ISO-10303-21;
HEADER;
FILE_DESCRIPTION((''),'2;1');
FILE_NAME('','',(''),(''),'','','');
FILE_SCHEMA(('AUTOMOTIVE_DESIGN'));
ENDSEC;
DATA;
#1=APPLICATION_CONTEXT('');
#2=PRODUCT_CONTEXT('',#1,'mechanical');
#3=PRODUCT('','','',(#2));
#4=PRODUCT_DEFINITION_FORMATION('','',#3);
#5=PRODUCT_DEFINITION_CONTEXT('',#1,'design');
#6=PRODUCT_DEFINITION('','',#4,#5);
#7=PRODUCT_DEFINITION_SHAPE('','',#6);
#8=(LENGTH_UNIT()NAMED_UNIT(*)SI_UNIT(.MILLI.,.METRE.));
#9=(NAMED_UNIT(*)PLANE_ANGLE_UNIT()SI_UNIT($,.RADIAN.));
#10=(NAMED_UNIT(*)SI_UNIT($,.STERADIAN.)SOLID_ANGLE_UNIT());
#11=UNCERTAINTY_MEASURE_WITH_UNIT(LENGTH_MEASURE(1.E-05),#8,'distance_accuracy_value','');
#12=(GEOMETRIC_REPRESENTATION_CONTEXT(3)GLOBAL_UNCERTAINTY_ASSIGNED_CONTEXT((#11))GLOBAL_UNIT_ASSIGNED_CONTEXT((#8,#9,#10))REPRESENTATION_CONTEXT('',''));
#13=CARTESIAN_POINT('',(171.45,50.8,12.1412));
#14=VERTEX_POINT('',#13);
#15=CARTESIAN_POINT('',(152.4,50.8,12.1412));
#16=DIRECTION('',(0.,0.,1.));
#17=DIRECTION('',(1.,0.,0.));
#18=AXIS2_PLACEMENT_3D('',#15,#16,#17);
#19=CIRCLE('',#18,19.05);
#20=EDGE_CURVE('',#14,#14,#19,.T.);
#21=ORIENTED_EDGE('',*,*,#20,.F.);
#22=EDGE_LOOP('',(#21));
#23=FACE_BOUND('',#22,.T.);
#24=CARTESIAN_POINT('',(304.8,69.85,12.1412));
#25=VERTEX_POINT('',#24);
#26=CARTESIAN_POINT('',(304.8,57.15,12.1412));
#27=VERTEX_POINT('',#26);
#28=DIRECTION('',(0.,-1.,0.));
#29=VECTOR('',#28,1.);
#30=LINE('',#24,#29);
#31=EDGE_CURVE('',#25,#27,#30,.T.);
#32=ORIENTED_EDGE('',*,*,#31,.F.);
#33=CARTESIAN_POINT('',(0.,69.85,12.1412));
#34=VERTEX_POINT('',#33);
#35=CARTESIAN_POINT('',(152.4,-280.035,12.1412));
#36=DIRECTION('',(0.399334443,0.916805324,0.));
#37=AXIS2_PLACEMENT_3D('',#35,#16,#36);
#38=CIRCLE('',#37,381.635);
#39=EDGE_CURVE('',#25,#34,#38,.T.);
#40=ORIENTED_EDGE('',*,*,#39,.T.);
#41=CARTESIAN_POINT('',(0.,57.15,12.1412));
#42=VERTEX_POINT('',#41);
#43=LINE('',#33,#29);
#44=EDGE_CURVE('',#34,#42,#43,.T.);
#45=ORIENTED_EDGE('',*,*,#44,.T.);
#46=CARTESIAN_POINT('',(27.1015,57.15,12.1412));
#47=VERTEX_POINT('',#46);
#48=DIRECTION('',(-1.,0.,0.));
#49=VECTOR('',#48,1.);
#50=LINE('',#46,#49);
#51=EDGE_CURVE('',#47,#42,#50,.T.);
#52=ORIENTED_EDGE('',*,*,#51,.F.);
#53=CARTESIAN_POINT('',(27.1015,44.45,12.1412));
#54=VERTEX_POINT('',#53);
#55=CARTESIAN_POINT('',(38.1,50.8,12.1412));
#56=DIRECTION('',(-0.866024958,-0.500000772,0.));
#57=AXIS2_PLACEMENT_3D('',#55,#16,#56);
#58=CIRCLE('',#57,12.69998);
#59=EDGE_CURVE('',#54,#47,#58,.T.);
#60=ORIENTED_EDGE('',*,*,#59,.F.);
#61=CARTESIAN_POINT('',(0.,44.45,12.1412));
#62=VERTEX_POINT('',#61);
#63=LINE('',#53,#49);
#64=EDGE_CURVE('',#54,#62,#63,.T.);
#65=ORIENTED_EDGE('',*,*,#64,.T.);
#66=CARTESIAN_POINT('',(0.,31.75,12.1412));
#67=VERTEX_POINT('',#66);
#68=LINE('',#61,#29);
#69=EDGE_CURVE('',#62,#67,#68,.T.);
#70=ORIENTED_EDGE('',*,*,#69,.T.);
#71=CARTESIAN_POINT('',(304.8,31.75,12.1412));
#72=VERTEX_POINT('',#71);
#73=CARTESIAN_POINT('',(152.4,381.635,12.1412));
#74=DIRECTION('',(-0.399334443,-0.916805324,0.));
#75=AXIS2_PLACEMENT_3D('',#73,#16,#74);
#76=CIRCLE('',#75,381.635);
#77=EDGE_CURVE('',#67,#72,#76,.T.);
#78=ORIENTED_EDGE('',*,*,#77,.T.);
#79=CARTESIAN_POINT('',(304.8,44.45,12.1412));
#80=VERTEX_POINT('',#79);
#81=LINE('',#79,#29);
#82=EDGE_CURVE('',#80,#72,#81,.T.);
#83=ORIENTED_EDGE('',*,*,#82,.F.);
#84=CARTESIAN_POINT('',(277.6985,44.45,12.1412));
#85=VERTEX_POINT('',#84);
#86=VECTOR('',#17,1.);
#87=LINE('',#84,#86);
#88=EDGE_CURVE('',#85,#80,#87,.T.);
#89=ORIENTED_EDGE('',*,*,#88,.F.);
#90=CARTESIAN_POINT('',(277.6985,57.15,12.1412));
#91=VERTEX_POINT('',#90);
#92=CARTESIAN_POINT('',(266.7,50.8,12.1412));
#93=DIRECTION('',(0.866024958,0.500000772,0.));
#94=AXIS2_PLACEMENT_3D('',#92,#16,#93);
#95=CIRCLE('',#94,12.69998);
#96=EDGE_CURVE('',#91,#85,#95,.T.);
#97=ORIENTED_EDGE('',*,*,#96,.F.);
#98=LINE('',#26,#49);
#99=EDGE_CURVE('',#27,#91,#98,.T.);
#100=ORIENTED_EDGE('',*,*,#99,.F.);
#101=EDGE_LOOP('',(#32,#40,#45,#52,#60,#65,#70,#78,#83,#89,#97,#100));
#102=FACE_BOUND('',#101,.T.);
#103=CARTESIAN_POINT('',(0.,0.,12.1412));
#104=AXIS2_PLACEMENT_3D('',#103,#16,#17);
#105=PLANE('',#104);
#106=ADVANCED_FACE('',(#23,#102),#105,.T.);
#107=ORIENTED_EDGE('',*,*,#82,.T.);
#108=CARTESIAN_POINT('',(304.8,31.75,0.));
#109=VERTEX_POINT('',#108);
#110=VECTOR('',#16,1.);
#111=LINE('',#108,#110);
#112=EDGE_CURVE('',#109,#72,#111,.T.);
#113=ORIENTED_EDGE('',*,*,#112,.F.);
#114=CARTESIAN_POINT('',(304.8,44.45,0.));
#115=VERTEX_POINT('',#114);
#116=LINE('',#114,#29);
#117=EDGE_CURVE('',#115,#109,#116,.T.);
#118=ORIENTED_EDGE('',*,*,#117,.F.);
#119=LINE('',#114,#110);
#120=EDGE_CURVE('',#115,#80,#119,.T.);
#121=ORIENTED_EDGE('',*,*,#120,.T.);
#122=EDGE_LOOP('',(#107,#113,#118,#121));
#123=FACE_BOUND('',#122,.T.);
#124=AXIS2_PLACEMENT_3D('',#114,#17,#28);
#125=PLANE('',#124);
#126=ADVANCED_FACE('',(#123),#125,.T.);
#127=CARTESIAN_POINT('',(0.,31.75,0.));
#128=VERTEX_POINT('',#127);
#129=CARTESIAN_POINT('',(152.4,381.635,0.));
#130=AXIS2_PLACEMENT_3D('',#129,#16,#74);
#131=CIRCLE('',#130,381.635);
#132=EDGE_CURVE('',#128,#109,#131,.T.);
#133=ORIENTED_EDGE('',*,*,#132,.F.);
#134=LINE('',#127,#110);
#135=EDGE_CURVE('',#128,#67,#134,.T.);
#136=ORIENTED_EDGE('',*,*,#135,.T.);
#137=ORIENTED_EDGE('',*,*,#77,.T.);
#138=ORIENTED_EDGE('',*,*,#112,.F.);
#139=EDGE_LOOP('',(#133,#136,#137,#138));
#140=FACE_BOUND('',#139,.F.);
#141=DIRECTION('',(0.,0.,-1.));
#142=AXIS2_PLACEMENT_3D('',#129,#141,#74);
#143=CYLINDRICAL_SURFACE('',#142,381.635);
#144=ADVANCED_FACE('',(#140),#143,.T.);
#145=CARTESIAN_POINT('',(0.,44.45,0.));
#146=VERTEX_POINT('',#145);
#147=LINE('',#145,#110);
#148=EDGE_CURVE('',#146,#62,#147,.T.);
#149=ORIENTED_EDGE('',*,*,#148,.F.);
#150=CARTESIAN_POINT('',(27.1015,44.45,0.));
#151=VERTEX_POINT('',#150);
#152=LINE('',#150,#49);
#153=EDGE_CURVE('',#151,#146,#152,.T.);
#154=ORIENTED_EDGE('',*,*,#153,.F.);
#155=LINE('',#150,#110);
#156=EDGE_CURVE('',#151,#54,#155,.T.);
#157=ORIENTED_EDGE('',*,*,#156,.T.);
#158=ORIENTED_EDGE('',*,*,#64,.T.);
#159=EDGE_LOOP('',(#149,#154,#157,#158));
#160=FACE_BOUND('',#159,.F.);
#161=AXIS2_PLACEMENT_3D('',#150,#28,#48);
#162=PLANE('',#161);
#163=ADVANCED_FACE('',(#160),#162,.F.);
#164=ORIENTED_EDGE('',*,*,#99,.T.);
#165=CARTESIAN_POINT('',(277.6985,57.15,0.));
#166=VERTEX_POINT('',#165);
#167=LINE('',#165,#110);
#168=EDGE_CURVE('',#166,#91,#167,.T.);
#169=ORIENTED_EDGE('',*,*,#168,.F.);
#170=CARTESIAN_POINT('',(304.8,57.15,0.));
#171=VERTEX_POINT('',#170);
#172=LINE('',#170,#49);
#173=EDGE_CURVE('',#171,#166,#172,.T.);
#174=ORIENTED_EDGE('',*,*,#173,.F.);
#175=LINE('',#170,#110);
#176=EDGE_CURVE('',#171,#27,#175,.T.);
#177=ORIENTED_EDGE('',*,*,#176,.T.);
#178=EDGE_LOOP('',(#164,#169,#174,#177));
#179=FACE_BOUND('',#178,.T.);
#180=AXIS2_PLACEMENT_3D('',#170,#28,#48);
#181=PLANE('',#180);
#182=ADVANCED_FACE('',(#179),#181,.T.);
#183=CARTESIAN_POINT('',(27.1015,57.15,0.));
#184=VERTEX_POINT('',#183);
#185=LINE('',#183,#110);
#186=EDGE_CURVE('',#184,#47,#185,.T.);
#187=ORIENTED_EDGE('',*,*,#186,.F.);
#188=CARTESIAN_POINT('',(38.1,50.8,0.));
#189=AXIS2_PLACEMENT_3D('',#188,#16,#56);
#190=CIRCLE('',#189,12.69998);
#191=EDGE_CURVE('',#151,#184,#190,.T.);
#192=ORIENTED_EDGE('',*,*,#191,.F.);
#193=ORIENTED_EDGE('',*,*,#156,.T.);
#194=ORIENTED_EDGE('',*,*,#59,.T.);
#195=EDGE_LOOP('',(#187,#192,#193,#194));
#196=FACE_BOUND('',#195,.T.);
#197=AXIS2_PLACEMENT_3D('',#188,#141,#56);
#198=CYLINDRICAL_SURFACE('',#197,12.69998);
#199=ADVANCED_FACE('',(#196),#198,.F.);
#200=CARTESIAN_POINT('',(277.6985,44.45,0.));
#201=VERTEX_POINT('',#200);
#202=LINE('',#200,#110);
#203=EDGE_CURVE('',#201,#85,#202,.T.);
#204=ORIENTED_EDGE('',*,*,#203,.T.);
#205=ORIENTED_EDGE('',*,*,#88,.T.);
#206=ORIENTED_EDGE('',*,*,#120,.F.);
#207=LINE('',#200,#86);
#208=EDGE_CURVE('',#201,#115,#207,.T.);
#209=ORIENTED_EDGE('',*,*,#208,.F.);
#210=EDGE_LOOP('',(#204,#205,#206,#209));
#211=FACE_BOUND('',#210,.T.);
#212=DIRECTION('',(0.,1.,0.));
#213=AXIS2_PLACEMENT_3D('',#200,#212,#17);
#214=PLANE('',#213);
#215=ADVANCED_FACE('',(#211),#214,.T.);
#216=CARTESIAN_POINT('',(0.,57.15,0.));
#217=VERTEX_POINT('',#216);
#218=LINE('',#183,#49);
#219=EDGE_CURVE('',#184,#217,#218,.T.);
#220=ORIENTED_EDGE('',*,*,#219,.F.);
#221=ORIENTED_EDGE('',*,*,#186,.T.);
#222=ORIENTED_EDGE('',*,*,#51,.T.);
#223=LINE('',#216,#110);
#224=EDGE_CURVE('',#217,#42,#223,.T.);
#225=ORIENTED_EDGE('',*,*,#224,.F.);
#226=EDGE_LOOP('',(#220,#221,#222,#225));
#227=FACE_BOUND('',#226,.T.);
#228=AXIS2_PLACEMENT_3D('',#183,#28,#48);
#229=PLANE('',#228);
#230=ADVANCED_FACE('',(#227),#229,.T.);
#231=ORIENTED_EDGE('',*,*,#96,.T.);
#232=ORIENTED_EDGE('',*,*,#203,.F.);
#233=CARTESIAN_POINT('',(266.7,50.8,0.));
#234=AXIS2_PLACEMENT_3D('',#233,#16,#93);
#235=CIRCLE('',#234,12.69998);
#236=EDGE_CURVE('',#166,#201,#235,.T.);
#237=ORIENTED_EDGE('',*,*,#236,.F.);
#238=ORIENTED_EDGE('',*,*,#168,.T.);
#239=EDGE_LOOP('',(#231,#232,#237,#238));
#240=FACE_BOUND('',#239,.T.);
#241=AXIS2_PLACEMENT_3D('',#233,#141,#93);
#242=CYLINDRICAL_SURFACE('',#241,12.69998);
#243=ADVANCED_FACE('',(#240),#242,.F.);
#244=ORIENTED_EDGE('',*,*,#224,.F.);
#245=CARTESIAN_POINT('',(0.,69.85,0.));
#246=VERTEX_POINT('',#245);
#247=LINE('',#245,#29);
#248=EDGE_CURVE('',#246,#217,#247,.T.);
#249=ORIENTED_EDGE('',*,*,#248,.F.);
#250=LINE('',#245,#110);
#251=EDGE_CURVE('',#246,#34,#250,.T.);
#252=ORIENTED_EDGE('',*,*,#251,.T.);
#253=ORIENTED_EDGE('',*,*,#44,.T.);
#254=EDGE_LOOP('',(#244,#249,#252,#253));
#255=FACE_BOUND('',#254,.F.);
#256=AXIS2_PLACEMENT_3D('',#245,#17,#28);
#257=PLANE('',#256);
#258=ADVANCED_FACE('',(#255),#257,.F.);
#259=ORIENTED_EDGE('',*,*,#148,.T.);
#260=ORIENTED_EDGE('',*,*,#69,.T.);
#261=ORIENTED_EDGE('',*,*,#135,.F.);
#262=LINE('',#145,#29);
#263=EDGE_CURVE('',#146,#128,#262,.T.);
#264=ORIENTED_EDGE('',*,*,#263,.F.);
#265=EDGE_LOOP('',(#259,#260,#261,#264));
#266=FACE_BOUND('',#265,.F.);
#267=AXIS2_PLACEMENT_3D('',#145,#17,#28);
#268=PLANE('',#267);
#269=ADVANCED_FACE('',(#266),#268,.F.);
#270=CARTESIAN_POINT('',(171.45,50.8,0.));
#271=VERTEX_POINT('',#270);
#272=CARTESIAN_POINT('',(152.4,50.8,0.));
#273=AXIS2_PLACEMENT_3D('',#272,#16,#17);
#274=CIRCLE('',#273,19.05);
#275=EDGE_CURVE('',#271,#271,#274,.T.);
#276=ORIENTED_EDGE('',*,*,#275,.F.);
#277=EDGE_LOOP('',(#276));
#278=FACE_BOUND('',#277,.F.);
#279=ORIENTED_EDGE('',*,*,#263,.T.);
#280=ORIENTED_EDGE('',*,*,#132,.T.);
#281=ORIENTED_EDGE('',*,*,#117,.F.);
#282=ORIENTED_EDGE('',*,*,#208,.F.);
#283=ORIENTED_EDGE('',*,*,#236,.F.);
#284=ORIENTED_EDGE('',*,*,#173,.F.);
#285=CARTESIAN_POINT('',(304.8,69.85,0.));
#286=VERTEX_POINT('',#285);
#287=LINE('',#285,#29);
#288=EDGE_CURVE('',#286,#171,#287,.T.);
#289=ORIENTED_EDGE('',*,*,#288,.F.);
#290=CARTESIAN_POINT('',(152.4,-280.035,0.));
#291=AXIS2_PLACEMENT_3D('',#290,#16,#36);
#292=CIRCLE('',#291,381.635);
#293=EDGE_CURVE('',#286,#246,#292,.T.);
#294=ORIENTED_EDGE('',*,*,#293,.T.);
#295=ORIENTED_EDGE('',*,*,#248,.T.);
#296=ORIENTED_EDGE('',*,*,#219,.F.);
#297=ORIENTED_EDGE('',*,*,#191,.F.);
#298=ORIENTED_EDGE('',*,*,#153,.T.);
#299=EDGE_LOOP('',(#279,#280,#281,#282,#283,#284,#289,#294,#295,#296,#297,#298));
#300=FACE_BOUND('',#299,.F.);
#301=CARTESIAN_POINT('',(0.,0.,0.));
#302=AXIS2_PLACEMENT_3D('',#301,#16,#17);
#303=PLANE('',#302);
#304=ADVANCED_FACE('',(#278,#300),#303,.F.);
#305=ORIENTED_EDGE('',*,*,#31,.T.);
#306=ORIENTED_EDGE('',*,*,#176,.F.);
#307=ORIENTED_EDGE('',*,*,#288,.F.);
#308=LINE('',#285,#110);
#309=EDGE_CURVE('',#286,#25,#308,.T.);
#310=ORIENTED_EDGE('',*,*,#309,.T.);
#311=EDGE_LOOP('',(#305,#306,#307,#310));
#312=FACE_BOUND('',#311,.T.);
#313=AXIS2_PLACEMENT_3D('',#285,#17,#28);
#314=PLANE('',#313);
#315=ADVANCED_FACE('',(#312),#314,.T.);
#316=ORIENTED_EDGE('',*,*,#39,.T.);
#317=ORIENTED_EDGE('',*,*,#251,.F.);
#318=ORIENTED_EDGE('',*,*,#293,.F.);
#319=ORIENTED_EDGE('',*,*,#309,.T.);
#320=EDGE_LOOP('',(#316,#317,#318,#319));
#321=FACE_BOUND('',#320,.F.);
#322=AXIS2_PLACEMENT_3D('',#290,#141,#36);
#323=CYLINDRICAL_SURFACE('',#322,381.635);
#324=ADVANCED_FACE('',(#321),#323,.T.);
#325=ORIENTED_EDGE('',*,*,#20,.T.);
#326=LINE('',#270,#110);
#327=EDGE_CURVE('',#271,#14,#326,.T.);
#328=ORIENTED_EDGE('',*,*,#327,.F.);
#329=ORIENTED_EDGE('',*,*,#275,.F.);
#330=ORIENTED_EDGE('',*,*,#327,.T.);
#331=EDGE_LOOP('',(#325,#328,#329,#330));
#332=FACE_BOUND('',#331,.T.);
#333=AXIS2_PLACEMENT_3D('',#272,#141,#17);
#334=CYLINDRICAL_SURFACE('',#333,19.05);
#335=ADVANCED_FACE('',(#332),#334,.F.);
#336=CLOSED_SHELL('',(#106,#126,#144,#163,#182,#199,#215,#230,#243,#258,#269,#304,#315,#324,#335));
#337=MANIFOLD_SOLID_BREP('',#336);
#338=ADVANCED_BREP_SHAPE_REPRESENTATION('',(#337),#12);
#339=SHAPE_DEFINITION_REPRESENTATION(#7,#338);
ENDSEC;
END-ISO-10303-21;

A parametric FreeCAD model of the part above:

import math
import FreeCAD as App
import Part
import Sketcher
Q = App.Units.Quantity

doc = App.newDocument("Part")
body = doc.addObject("PartDesign::Body", "Body")

# Sketch on XY plane
sketch1 = body.newObject("Sketcher::SketchObject", "Sketch")
sketch1.AttachmentSupport = (doc.getObject("XY_Plane"), [""])
sketch1.MapMode = "FlatFace"
sketch1.addGeometry(Part.LineSegment(App.Vector(0, 57, 0), App.Vector(27, 57, 0)), False)
sketch1.addGeometry(Part.ArcOfCircle(Part.Circle(App.Vector(38, 51, 0), App.Vector(0, 0, 1), 13), math.radians(-150), math.radians(150)), False)
sketch1.addGeometry(Part.LineSegment(App.Vector(27, 44, 0), App.Vector(0, 44, 0)), False)
sketch1.addGeometry(Part.LineSegment(App.Vector(0, 44, 0), App.Vector(0, 32, 0)), False)
sketch1.addGeometry(Part.ArcOfCircle(Part.Circle(App.Vector(152, 382, 0), App.Vector(0, 0, 1), 382), math.radians(-114), math.radians(-66)), False)
sketch1.addGeometry(Part.LineSegment(App.Vector(305, 32, 0), App.Vector(305, 44, 0)), False)
sketch1.addGeometry(Part.LineSegment(App.Vector(305, 44, 0), App.Vector(278, 44, 0)), False)
sketch1.addGeometry(Part.ArcOfCircle(Part.Circle(App.Vector(267, 51, 0), App.Vector(0, 0, 1), 13), math.radians(30), math.radians(330)), False)
sketch1.addGeometry(Part.LineSegment(App.Vector(278, 57, 0), App.Vector(305, 57, 0)), False)
sketch1.addGeometry(Part.LineSegment(App.Vector(305, 57, 0), App.Vector(305, 70, 0)), False)
sketch1.addGeometry(Part.ArcOfCircle(Part.Circle(App.Vector(152, -280, 0), App.Vector(0, 0, 1), 382), math.radians(66), math.radians(114)), False)
sketch1.addGeometry(Part.LineSegment(App.Vector(0, 70, 0), App.Vector(0, 57, 0)), False)
sketch1.addGeometry(Part.Circle(App.Vector(152, 51, 0), App.Vector(0, 0, 1), 19), False)
sketch1.addConstraint(Sketcher.Constraint("Coincident", 0, 2, 1, 2))
sketch1.addConstraint(Sketcher.Constraint("Coincident", 1, 1, 2, 1))
sketch1.addConstraint(Sketcher.Constraint("Coincident", 2, 2, 3, 1))
sketch1.addConstraint(Sketcher.Constraint("Coincident", 3, 2, 4, 1))
sketch1.addConstraint(Sketcher.Constraint("Coincident", 4, 2, 5, 1))
sketch1.addConstraint(Sketcher.Constraint("Coincident", 5, 2, 6, 1))
sketch1.addConstraint(Sketcher.Constraint("Coincident", 6, 2, 7, 2))
sketch1.addConstraint(Sketcher.Constraint("Coincident", 7, 1, 8, 1))
sketch1.addConstraint(Sketcher.Constraint("Coincident", 8, 2, 9, 1))
sketch1.addConstraint(Sketcher.Constraint("Coincident", 9, 2, 10, 1))
sketch1.addConstraint(Sketcher.Constraint("Coincident", 10, 2, 11, 1))
sketch1.addConstraint(Sketcher.Constraint("Coincident", 11, 2, 0, 1))
sketch1.addConstraint(Sketcher.Constraint("Horizontal", 0))
sketch1.addConstraint(Sketcher.Constraint("Horizontal", 2))
sketch1.addConstraint(Sketcher.Constraint("Vertical", 3))
sketch1.addConstraint(Sketcher.Constraint("Vertical", 5))
sketch1.addConstraint(Sketcher.Constraint("Horizontal", 6))
sketch1.addConstraint(Sketcher.Constraint("Horizontal", 8))
sketch1.addConstraint(Sketcher.Constraint("Vertical", 9))
sketch1.addConstraint(Sketcher.Constraint("Vertical", 11))
sketch1.addConstraint(Sketcher.Constraint("Equal", 1, 7))
sketch1.addConstraint(Sketcher.Constraint("Equal", 4, 10))
sketch1.addConstraint(Sketcher.Constraint("PointOnObject", 2, 2, -2))
sketch1.addConstraint(Sketcher.Constraint("PointOnObject", 11, 2, -2))
sketch1.addConstraint(Sketcher.Constraint("Horizontal", 1, 3, 7, 3))
sketch1.addConstraint(Sketcher.Constraint("Horizontal", 7, 3, 12, 3))
sketch1.addConstraint(Sketcher.Constraint("Horizontal", 3, 2, 4, 2))
sketch1.addConstraint(Sketcher.Constraint("Horizontal", 2, 2, 5, 2))
sketch1.addConstraint(Sketcher.Constraint("Horizontal", 0, 2, 7, 1))
sketch1.addConstraint(Sketcher.Constraint("Horizontal", 9, 2, 10, 2))
sketch1.addConstraint(Sketcher.Constraint("Vertical", 4, 3, 10, 3))
sketch1.addConstraint(Sketcher.Constraint("Vertical", 10, 3, 12, 3))
sketch1.addConstraint(Sketcher.Constraint("Vertical", 0, 2, 1, 1))
sketch1.addConstraint(Sketcher.Constraint("Equal", 2, 6))
sketch1.addConstraint(Sketcher.Constraint("Equal", 5, 9))
sketch1.addConstraint(Sketcher.Constraint("Diameter", 12, Q("1.5 in")))
sketch1.addConstraint(Sketcher.Constraint("Radius", 1, Q("0.5 in")))
sketch1.addConstraint(Sketcher.Constraint("DistanceY", 3, 2, 3, 1, Q("0.5 in")))
sketch1.addConstraint(Sketcher.Constraint("DistanceX", -1, 1, 4, 3, Q("6 in")))
sketch1.addConstraint(Sketcher.Constraint("DistanceY", 3, 2, 0, 2, Q("1 in")))
sketch1.addConstraint(Sketcher.Constraint("DistanceX", -1, 1, 1, 3, Q("1.5 in")))
sketch1.addConstraint(Sketcher.Constraint("DistanceY", -1, 1, 1, 3, Q("2 in")))
sketch1.addConstraint(Sketcher.Constraint("Radius", 4, Q("15.025 in")))
pad1 = body.newObject("PartDesign::Pad", "Pad")
pad1.Profile = sketch1
pad1.Length = Q("0.478 in")

doc.recompute()
